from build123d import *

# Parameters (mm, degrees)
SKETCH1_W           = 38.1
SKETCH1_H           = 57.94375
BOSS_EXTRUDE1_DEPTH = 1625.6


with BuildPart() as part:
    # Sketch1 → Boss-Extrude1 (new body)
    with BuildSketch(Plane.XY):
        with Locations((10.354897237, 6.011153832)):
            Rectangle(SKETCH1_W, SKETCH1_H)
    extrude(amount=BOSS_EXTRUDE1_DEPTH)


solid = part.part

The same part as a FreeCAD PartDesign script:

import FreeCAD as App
import Part
import Sketcher

V = App.Vector
Q = App.Units.Quantity


def add_polygon(sketch, points):
    """Adds a closed chain of lines whose ends are joined by coincident constraints."""
    first, n = sketch.GeometryCount, len(points)
    for a, b in zip(points, points[1:] + points[:1]):
        sketch.addGeometry(Part.LineSegment(App.Vector(*a, 0), App.Vector(*b, 0)), False)
    for i in range(n):
        sketch.addConstraint(Sketcher.Constraint("Coincident", first + i, 2, first + (i + 1) % n, 1))

doc = App.newDocument("Part")
body = doc.addObject("PartDesign::Body", "Body")

sketch1 = body.newObject("Sketcher::SketchObject", "Sketch")
sketch1.AttachmentSupport = (doc.getObject("XY_Plane"), [""])
sketch1.MapMode = "FlatFace"
add_polygon(sketch1, [(-9, 35), (-9, -23), (29, -23), (29, 35)])
sketch1.addConstraint([
    Sketcher.Constraint("Vertical", 0),
    Sketcher.Constraint("Horizontal", 1),
    Sketcher.Constraint("Vertical", 2),
    Sketcher.Constraint("Horizontal", 3),
    Sketcher.Constraint("DistanceX", 1, 1, 1, 2, Q("1.5 in")),
    Sketcher.Constraint("DistanceY", 0, 2, 0, 1, Q("2.28125 in")),
    Sketcher.Constraint("DistanceY", 0, 2, -1, 1, Q("22.960721 mm")),
    Sketcher.Constraint("DistanceX", 0, 2, -1, 1, Q("8.695103 mm")),
])
pad1 = body.newObject("PartDesign::Pad", "Pad")
pad1.Profile = sketch1
pad1.Length = Q("64 in")

doc.recompute()
